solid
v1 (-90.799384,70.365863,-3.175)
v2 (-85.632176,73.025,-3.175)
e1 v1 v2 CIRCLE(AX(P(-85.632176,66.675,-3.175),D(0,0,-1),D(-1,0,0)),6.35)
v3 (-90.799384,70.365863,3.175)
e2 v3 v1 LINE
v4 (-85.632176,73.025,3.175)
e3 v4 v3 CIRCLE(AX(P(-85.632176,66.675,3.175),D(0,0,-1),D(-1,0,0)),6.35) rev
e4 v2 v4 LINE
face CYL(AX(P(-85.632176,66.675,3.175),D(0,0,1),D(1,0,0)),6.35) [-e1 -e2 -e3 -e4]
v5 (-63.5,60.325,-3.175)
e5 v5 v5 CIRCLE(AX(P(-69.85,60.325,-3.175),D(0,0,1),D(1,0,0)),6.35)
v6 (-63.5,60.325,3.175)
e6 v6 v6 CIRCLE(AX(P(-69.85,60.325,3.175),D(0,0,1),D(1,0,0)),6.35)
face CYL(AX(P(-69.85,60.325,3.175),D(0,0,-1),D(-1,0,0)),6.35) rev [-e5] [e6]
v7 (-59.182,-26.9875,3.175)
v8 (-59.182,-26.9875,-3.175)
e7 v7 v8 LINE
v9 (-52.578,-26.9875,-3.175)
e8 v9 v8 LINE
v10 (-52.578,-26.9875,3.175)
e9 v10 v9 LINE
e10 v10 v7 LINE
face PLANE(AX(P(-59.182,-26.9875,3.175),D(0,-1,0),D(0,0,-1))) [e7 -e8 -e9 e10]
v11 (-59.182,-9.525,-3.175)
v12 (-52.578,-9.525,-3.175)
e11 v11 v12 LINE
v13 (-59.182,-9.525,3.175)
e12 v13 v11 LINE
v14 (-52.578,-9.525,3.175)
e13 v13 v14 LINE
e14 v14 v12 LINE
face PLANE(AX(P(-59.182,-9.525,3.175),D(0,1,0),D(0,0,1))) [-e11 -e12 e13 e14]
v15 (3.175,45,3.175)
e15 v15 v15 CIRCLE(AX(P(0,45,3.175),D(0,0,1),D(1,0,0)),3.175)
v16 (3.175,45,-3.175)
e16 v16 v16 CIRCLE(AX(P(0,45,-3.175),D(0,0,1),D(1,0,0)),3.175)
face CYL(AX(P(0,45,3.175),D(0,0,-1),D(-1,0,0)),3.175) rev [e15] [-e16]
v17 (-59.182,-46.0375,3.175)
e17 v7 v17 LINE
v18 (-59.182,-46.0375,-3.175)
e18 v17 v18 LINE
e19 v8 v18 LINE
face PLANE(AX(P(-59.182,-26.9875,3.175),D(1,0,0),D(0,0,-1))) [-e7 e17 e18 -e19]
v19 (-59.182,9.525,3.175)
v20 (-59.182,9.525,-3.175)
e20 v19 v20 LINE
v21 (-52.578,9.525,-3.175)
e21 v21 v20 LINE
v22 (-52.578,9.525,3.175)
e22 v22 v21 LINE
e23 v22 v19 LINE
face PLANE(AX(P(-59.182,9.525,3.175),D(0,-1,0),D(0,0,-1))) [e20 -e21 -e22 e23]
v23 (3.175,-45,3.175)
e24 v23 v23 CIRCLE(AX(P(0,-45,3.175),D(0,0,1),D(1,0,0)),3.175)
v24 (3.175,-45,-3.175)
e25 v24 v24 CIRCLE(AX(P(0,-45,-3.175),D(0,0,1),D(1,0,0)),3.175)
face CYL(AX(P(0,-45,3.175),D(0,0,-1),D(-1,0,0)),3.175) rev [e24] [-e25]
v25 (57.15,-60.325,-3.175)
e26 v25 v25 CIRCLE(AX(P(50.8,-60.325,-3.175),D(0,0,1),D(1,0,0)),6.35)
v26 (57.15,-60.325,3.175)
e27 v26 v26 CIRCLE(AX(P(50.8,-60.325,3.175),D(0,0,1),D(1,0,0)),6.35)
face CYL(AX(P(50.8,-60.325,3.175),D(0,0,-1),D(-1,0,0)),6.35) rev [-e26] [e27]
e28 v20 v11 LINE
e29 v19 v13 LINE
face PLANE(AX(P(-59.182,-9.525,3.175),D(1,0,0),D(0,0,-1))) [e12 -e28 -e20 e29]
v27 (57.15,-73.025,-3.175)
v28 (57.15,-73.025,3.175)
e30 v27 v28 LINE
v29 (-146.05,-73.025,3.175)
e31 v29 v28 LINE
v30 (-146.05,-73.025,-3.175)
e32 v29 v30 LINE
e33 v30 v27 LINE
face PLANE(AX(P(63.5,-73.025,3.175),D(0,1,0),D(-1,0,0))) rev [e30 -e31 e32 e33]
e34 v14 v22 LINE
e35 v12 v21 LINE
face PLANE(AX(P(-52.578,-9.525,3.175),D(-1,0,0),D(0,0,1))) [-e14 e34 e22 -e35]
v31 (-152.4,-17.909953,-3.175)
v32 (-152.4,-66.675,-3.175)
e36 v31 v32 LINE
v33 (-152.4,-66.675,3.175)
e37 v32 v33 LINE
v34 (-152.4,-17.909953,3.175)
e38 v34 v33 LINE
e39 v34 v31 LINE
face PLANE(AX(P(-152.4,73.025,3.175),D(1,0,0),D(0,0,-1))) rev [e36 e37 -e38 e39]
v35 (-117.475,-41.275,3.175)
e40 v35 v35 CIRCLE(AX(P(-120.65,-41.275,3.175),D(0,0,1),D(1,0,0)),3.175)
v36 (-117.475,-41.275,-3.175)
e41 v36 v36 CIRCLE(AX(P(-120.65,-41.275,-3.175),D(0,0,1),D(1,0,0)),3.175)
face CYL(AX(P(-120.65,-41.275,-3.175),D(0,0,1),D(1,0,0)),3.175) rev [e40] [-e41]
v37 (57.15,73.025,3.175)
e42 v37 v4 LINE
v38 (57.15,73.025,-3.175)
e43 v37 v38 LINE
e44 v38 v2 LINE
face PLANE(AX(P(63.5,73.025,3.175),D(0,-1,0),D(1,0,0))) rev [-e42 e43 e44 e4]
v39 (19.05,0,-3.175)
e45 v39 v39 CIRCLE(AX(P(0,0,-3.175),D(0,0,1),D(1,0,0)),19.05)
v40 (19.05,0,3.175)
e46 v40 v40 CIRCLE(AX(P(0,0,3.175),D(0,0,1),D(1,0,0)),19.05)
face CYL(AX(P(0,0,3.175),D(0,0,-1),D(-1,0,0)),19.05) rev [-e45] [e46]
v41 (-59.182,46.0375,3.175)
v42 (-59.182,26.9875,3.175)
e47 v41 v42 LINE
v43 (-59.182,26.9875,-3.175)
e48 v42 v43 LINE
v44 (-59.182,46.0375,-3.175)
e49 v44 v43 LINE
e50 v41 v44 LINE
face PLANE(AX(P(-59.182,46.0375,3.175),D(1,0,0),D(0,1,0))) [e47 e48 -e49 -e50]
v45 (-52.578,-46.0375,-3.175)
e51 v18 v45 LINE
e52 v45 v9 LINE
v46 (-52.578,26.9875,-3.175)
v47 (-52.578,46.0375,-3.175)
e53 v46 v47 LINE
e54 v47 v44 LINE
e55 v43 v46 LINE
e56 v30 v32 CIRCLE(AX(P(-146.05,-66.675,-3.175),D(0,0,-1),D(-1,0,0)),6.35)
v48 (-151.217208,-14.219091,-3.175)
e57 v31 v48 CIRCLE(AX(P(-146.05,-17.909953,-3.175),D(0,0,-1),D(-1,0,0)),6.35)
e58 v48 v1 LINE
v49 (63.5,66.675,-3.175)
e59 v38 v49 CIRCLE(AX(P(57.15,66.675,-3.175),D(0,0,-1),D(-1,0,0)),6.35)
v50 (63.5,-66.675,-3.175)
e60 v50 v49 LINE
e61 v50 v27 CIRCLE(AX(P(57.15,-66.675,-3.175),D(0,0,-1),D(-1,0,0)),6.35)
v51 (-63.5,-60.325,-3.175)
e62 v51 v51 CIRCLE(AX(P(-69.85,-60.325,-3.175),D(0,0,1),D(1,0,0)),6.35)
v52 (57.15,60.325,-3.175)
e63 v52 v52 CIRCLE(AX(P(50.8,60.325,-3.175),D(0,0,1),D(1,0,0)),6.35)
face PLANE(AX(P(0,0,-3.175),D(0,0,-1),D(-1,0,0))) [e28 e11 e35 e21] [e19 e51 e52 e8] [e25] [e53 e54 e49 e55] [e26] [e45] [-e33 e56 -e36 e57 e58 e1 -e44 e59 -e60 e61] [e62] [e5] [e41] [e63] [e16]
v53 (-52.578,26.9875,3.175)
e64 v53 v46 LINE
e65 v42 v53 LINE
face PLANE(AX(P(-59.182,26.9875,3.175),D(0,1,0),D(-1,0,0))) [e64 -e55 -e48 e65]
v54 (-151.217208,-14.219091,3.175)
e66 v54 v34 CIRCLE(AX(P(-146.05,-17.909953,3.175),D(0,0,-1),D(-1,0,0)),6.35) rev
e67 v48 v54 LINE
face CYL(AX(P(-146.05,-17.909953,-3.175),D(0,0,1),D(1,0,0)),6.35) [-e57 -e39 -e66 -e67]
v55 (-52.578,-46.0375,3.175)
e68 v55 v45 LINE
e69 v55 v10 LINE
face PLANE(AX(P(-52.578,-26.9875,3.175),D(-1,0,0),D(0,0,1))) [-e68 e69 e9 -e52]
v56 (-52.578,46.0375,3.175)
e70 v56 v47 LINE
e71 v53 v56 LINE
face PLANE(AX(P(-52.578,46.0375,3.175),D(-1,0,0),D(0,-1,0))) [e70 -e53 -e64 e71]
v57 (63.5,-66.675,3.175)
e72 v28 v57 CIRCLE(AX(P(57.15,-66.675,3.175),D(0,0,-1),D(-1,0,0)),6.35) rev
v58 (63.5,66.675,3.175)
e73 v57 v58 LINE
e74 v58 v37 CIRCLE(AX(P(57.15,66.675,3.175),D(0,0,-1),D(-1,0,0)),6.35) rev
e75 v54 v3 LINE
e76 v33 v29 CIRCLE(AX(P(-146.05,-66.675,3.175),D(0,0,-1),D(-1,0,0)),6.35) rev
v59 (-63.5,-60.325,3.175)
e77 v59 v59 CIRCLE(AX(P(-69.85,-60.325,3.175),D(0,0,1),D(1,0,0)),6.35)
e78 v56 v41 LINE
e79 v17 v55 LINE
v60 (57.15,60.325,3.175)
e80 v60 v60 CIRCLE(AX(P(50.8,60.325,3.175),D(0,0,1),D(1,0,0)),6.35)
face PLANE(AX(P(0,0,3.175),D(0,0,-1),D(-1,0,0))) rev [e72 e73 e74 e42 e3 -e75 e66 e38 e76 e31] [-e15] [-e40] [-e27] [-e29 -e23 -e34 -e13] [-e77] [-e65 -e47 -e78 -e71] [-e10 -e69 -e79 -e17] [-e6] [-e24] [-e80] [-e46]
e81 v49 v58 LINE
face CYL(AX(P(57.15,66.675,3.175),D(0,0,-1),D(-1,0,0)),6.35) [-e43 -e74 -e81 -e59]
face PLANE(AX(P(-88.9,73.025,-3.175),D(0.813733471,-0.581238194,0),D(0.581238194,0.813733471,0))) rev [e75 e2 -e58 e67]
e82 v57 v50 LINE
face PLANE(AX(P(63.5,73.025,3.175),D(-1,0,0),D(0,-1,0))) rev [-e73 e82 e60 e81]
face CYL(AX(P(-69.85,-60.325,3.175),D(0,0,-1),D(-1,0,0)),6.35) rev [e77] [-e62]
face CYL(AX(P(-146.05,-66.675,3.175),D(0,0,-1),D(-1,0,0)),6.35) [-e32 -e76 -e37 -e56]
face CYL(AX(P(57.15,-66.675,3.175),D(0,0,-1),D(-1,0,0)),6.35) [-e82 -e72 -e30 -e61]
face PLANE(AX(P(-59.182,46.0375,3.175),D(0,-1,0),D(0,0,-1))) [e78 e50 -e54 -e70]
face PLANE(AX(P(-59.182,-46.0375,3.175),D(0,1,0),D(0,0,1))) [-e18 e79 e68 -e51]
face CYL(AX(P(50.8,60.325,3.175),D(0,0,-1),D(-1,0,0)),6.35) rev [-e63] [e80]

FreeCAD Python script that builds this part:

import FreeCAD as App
import Part
import Sketcher
Q = App.Units.Quantity


def edges_at(feature, points):
    """Names of the edges that pass closest to the given points."""
    edges = feature.Shape.Edges
    near = lambda p: min(range(len(edges)), key=lambda i: edges[i].distToShape(Part.Vertex(*p))[0])
    return sorted({f"Edge{near(p) + 1}" for p in points})

doc = App.newDocument("Part")
body = doc.addObject("PartDesign::Body", "Body")

sketch1 = body.newObject("Sketcher::SketchObject", "Sketch")
sketch1.AttachmentSupport = (doc.getObject("XY_Plane"), [""])
sketch1.MapMode = "FlatFace"
sketch1.addGeometry(Part.LineSegment(App.Vector(-152.4, 73, 0), App.Vector(-152.4, -73, 0)), False)
sketch1.addGeometry(Part.LineSegment(App.Vector(-152.4, -73, 0), App.Vector(63.5, -73, 0)), False)
sketch1.addGeometry(Part.LineSegment(App.Vector(63.5, -73, 0), App.Vector(63.5, 73, 0)), False)
sketch1.addGeometry(Part.LineSegment(App.Vector(63.5, 73, 0), App.Vector(-152.4, 73, 0)), False)
sketch1.addGeometry(Part.Circle(App.Vector(-69.8, -60.3, 0), App.Vector(0, 0, 1), 6.3), False)
sketch1.addGeometry(Part.LineSegment(App.Vector(-52.6, -46, 0), App.Vector(-59.2, -46, 0)), False)
sketch1.addGeometry(Part.LineSegment(App.Vector(-59.2, -46, 0), App.Vector(-59.2, -27, 0)), False)
sketch1.addGeometry(Part.LineSegment(App.Vector(-59.2, -27, 0), App.Vector(-52.6, -27, 0)), False)
sketch1.addGeometry(Part.LineSegment(App.Vector(-52.6, -27, 0), App.Vector(-52.6, -46, 0)), False)
sketch1.addGeometry(Part.Circle(App.Vector(0, -45, 0), App.Vector(0, 0, 1), 3.2), False)
sketch1.addGeometry(Part.Circle(App.Vector(50.8, -60.3, 0), App.Vector(0, 0, 1), 6.3), False)
sketch1.addGeometry(Part.LineSegment(App.Vector(-52.6, -9.5, 0), App.Vector(-59.2, -9.5, 0)), False)
sketch1.addGeometry(Part.LineSegment(App.Vector(-59.2, -9.5, 0), App.Vector(-59.2, 9.5, 0)), False)
sketch1.addGeometry(Part.LineSegment(App.Vector(-59.2, 9.5, 0), App.Vector(-52.6, 9.5, 0)), False)
sketch1.addGeometry(Part.LineSegment(App.Vector(-52.6, 9.5, 0), App.Vector(-52.6, -9.5, 0)), False)
sketch1.addGeometry(Part.LineSegment(App.Vector(-52.6, 27, 0), App.Vector(-59.2, 27, 0)), False)
sketch1.addGeometry(Part.LineSegment(App.Vector(-59.2, 27, 0), App.Vector(-59.2, 46, 0)), False)
sketch1.addGeometry(Part.LineSegment(App.Vector(-59.2, 46, 0), App.Vector(-52.6, 46, 0)), False)
sketch1.addGeometry(Part.LineSegment(App.Vector(-52.6, 46, 0), App.Vector(-52.6, 27, 0)), False)
sketch1.addGeometry(Part.Circle(App.Vector(-69.8, 60.3, 0), App.Vector(0, 0, 1), 6.3), False)
sketch1.addGeometry(Part.Circle(App.Vector(0, 0, 0), App.Vector(0, 0, 1), 19.1), False)
sketch1.addGeometry(Part.Circle(App.Vector(0, 45, 0), App.Vector(0, 0, 1), 3.2), False)
sketch1.addGeometry(Part.Circle(App.Vector(50.8, 60.3, 0), App.Vector(0, 0, 1), 6.3), False)
sketch1.addConstraint(Sketcher.Constraint("Coincident", 0, 2, 1, 1))
sketch1.addConstraint(Sketcher.Constraint("Coincident", 1, 2, 2, 1))
sketch1.addConstraint(Sketcher.Constraint("Coincident", 2, 2, 3, 1))
sketch1.addConstraint(Sketcher.Constraint("Coincident", 3, 2, 0, 1))
sketch1.addConstraint(Sketcher.Constraint("Coincident", 5, 2, 6, 1))
sketch1.addConstraint(Sketcher.Constraint("Coincident", 6, 2, 7, 1))
sketch1.addConstraint(Sketcher.Constraint("Coincident", 7, 2, 8, 1))
sketch1.addConstraint(Sketcher.Constraint("Coincident", 8, 2, 5, 1))
sketch1.addConstraint(Sketcher.Constraint("Coincident", 11, 2, 12, 1))
sketch1.addConstraint(Sketcher.Constraint("Coincident", 12, 2, 13, 1))
sketch1.addConstraint(Sketcher.Constraint("Coincident", 13, 2, 14, 1))
sketch1.addConstraint(Sketcher.Constraint("Coincident", 14, 2, 11, 1))
sketch1.addConstraint(Sketcher.Constraint("Coincident", 15, 2, 16, 1))
sketch1.addConstraint(Sketcher.Constraint("Coincident", 16, 2, 17, 1))
sketch1.addConstraint(Sketcher.Constraint("Coincident", 17, 2, 18, 1))
sketch1.addConstraint(Sketcher.Constraint("Coincident", 18, 2, 15, 1))
sketch1.addConstraint(Sketcher.Constraint("Vertical", 0))
sketch1.addConstraint(Sketcher.Constraint("Horizontal", 1))
sketch1.addConstraint(Sketcher.Constraint("Vertical", 2))
sketch1.addConstraint(Sketcher.Constraint("Horizontal", 3))
sketch1.addConstraint(Sketcher.Constraint("Horizontal", 5))
sketch1.addConstraint(Sketcher.Constraint("Vertical", 6))
sketch1.addConstraint(Sketcher.Constraint("Horizontal", 7))
sketch1.addConstraint(Sketcher.Constraint("Vertical", 8))
sketch1.addConstraint(Sketcher.Constraint("Horizontal", 11))
sketch1.addConstraint(Sketcher.Constraint("Vertical", 12))
sketch1.addConstraint(Sketcher.Constraint("Horizontal", 13))
sketch1.addConstraint(Sketcher.Constraint("Vertical", 14))
sketch1.addConstraint(Sketcher.Constraint("Horizontal", 15))
sketch1.addConstraint(Sketcher.Constraint("Vertical", 16))
sketch1.addConstraint(Sketcher.Constraint("Horizontal", 17))
sketch1.addConstraint(Sketcher.Constraint("Vertical", 18))
sketch1.addConstraint(Sketcher.Constraint("Coincident", 20, 3, -1, 1))
sketch1.addConstraint(Sketcher.Constraint("Equal", 4, 10))
sketch1.addConstraint(Sketcher.Constraint("Equal", 10, 19))
sketch1.addConstraint(Sketcher.Constraint("Equal", 9, 21))
sketch1.addConstraint(Sketcher.Constraint("Equal", 19, 22))
sketch1.addConstraint(Sketcher.Constraint("Symmetric", 9, 3, 21, 3, -1, 1))
sketch1.addConstraint(Sketcher.Constraint("Symmetric", 4, 3, 19, 3, -1))
sketch1.addConstraint(Sketcher.Constraint("Symmetric", 10, 3, 22, 3, -1))
sketch1.addConstraint(Sketcher.Constraint("Symmetric", 6, 2, 15, 2, -1))
sketch1.addConstraint(Sketcher.Constraint("Symmetric", 8, 2, 17, 2, -1))
sketch1.addConstraint(Sketcher.Constraint("PointOnObject", 9, 3, -2))
sketch1.addConstraint(Sketcher.Constraint("Horizontal", 4, 3, 10, 3))
sketch1.addConstraint(Sketcher.Constraint("Vertical", 6, 2, 11, 2))
sketch1.addConstraint(Sketcher.Constraint("Vertical", 8, 2, 13, 2))
sketch1.addConstraint(Sketcher.Constraint("Equal", 8, 12))
sketch1.addConstraint(Sketcher.Constraint("Diameter", 4, Q("0.5 in")))
sketch1.addConstraint(Sketcher.Constraint("Diameter", 20, Q("1.5 in")))
sketch1.addConstraint(Sketcher.Constraint("Diameter", 9, Q("0.25 in")))
sketch1.addConstraint(Sketcher.Constraint("DistanceX", 1, 1, 1, 2, Q("8.5 in")))
sketch1.addConstraint(Sketcher.Constraint("DistanceX", -1, 1, 10, 3, Q("2 in")))
sketch1.addConstraint(Sketcher.Constraint("DistanceX", 0, 2, -1, 1, Q("6 in")))
sketch1.addConstraint(Sketcher.Constraint("DistanceY", 4, 3, 11, 2, Q("2 in")))
sketch1.addConstraint(Sketcher.Constraint("DistanceY", 12, 2, 19, 3, Q("2 in")))
sketch1.addConstraint(Sketcher.Constraint("DistanceX", 5, 2, 5, 1, Q("0.26 in")))
sketch1.addConstraint(Sketcher.Constraint("DistanceY", 0, 2, 0, 1, Q("5.75 in")))
sketch1.addConstraint(Sketcher.Constraint("DistanceY", 6, 1, 6, 2, Q("0.75 in")))
sketch1.addConstraint(Sketcher.Constraint("DistanceY", 0, 2, 4, 3, Q("0.5 in")))
sketch1.addConstraint(Sketcher.Constraint("DistanceX", 4, 3, -1, 1, Q("2.75 in")))
sketch1.addConstraint(Sketcher.Constraint("DistanceX", 5, 2, -1, 1, Q("2.33 in")))
sketch1.addConstraint(Sketcher.Constraint("DistanceY", 5, 2, -1, 1, Q("1.8125 in")))
sketch1.addConstraint(Sketcher.Constraint("DistanceY", 9, 3, -1, 1, 45.0))
pad1 = body.newObject("PartDesign::Pad", "Pad")
pad1.Profile = sketch1
pad1.Length = Q("0.25 in")
pad1.Midplane = True

sketch2 = body.newObject("Sketcher::SketchObject", "Sketch001")
sketch2.AttachmentSupport = (doc.getObject("XY_Plane"), [""])
sketch2.MapMode = "FlatFace"
sketch2.AttachmentOffset = App.Placement(App.Vector(0, 0, 0.125 * 25.4), App.Rotation())
sketch2.addGeometry(Part.Circle(App.Vector(-120.7, -41.3, 0), App.Vector(0, 0, 1), 3.2), False)
sketch2.addGeometry(Part.LineSegment(App.Vector(-152.4, -15.9, 0), App.Vector(-88.9, 73, 0)), False)
sketch2.addGeometry(Part.LineSegment(App.Vector(-88.9, 73, 0), App.Vector(-152.4, 73, 0)), False)
sketch2.addGeometry(Part.LineSegment(App.Vector(-152.4, 73, 0), App.Vector(-152.4, -15.9, 0)), False)
sketch2.addConstraint(Sketcher.Constraint("Coincident", 1, 2, 2, 1))
sketch2.addConstraint(Sketcher.Constraint("Coincident", 2, 2, 3, 1))
sketch2.addConstraint(Sketcher.Constraint("Coincident", 3, 2, 1, 1))
sketch2.addConstraint(Sketcher.Constraint("Horizontal", 2))
sketch2.addConstraint(Sketcher.Constraint("Vertical", 3))
sketch2.addConstraint(Sketcher.Constraint("Diameter", 0, Q("0.25 in")))
sketch2.addConstraint(Sketcher.Constraint("DistanceX", 2, 2, 2, 1, Q("2.5 in")))
sketch2.addConstraint(Sketcher.Constraint("DistanceY", 3, 2, 3, 1, Q("3.5 in")))
sketch2.addConstraint(Sketcher.Constraint("DistanceX", 2, 2, -1, 1, Q("6 in")))
sketch2.addConstraint(Sketcher.Constraint("DistanceY", 0, 3, 3, 2, Q("1 in")))
sketch2.addConstraint(Sketcher.Constraint("DistanceX", 0, 3, -1, 1, Q("4.75 in")))
sketch2.addConstraint(Sketcher.Constraint("DistanceY", 0, 3, -1, 1, Q("1.625 in")))
pocket1 = body.newObject("PartDesign::Pocket", "Pocket")
pocket1.Profile = sketch2
pocket1.Type = "ThroughAll"
doc.recompute()

fillet = body.newObject("PartDesign::Fillet", "Fillet")
fillet.Base = (pocket1, edges_at(pocket1, [
    (63.5, 73.025, 0),
    (63.5, -73.025, 0),
    (-152.4, -73.025, 0),
    (-88.9, 73.025, 0),
    (-152.4, -15.875, 0),
]))
fillet.Radius = Q("0.25 in")

doc.recompute()
